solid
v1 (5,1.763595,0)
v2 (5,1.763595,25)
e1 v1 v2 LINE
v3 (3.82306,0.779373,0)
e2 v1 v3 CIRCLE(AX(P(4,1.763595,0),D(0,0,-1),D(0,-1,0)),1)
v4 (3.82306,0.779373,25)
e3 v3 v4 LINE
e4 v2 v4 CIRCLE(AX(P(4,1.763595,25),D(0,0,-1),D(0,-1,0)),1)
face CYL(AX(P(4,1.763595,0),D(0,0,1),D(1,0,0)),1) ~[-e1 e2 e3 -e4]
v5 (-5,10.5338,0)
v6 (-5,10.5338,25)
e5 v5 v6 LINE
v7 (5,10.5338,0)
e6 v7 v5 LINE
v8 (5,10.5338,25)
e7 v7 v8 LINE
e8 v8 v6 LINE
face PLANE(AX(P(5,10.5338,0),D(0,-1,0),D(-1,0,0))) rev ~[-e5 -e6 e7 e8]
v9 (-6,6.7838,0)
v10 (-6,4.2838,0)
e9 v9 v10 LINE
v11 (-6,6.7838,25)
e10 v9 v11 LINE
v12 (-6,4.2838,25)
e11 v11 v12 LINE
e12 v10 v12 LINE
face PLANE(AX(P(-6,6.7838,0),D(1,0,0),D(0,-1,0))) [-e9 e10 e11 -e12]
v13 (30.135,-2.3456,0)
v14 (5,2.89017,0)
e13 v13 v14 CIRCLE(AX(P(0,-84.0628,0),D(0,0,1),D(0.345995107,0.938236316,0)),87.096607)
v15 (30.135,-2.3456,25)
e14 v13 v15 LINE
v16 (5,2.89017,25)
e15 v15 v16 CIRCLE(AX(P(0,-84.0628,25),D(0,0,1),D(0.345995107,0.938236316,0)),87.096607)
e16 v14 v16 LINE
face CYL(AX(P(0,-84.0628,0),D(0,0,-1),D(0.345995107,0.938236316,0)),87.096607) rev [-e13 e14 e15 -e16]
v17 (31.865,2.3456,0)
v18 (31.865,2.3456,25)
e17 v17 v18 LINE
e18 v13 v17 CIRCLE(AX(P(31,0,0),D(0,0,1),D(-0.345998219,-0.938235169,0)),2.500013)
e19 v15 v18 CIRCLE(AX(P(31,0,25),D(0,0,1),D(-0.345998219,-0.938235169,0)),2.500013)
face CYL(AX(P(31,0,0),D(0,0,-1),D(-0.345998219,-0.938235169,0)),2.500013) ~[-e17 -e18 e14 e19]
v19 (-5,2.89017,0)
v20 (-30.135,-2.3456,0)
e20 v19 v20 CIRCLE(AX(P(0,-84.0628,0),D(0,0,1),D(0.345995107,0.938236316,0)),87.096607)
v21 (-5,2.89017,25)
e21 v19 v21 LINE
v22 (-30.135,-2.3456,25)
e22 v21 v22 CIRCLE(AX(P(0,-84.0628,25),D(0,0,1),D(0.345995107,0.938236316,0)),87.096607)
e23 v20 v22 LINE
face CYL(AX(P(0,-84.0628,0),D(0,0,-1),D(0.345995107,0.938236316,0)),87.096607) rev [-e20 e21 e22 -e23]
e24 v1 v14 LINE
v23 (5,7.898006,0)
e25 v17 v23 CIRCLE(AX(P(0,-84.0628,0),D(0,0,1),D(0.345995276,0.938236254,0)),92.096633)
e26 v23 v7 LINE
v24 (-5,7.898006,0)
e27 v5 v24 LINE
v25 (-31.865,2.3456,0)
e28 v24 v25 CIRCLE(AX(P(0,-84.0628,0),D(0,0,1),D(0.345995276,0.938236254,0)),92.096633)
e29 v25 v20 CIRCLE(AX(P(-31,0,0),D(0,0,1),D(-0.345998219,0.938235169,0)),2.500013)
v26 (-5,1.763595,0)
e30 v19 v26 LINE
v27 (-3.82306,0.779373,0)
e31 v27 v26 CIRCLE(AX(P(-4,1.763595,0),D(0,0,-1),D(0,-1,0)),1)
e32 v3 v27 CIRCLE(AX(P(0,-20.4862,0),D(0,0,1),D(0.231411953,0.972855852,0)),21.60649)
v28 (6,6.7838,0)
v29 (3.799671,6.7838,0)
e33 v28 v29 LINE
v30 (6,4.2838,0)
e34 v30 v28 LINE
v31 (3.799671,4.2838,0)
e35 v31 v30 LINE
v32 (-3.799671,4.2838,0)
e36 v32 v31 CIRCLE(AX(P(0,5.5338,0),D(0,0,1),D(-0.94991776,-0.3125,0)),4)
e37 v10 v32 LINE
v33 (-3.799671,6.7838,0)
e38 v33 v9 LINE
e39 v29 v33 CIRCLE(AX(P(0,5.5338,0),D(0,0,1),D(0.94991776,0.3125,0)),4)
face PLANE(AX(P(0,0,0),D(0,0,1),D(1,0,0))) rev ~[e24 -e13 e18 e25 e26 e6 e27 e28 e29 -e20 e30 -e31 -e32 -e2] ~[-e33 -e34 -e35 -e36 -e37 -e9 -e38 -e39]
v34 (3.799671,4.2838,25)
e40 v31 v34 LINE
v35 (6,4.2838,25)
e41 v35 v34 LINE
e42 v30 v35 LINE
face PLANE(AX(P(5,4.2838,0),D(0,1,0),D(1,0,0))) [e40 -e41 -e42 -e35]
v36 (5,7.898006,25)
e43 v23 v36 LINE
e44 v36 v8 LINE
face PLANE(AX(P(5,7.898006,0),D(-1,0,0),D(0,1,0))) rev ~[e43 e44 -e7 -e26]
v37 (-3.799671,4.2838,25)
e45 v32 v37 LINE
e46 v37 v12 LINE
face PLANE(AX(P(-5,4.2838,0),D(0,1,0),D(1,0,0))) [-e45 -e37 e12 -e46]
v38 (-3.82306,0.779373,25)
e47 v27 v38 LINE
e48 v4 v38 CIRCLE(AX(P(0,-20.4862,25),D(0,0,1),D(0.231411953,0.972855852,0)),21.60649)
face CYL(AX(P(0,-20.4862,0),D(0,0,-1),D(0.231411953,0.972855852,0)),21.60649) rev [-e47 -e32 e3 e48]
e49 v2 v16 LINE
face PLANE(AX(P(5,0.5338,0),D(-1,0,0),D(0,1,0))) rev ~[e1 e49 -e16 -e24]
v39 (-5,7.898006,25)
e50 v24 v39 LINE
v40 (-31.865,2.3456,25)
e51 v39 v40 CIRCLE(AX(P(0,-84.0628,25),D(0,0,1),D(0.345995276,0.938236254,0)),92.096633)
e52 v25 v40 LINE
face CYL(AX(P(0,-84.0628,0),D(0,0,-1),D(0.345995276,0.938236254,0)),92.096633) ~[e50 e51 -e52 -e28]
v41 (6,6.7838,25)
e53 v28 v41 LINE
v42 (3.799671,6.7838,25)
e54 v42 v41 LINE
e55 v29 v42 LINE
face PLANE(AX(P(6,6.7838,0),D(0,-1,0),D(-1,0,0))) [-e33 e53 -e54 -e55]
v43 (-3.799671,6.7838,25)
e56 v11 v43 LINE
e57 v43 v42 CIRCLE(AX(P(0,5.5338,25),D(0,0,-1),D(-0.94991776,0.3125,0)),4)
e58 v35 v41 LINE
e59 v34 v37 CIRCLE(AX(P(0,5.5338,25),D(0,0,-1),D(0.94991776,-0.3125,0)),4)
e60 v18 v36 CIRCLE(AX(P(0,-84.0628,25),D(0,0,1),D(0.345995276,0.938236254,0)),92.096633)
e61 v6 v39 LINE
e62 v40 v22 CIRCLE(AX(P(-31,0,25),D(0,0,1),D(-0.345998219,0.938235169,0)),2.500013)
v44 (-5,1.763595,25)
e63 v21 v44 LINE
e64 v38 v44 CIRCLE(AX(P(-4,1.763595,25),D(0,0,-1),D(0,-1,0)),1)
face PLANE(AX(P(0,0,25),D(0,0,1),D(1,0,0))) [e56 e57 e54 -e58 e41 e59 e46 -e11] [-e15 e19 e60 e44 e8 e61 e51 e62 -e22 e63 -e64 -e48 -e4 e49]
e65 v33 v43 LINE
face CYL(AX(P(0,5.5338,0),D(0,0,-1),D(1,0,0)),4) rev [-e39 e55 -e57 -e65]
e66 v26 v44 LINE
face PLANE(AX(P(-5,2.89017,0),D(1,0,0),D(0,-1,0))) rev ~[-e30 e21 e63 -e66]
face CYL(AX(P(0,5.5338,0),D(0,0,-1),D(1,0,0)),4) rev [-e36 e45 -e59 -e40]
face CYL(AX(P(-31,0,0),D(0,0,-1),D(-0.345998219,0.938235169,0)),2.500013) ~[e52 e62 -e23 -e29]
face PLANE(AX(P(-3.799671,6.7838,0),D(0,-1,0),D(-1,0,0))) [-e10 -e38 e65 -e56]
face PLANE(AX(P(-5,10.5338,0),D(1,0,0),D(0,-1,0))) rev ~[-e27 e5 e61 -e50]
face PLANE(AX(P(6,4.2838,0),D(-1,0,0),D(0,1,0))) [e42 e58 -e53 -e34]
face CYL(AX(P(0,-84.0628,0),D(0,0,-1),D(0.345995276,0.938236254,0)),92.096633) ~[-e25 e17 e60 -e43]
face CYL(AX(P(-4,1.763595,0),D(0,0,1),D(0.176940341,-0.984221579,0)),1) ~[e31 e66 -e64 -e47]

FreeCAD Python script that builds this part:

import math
import FreeCAD as App
import Part
import Sketcher
Q = App.Units.Quantity


def edges_at(feature, points):
    """Names of the edges that pass closest to the given points."""
    edges = feature.Shape.Edges
    near = lambda p: min(range(len(edges)), key=lambda i: edges[i].distToShape(Part.Vertex(*p))[0])
    return sorted({f"Edge{near(p) + 1}" for p in points})

doc = App.newDocument("Part")
body = doc.addObject("PartDesign::Body", "Body")

# Sketch on XY plane
sketch1 = doc.addObject("Sketcher::SketchObject", "Sketch")
body.addObject(sketch1)
sketch1.AttachmentSupport = (doc.XY_Plane, [""])
sketch1.MapMode = "FlatFace"
sketch1.addGeometry([
    Part.ArcOfCircle(Part.Circle(App.Vector(31, 0, 0), App.Vector(0, 0, 1), 2.5), math.radians(-110), math.radians(70)),  # 0
    Part.ArcOfCircle(Part.Circle(App.Vector(0, -84.1, 0), App.Vector(0, 0, 1), 92.1), math.radians(69.76), math.radians(86.89)),  # 1
    Part.LineSegment(App.Vector(5, 7.9, 0), App.Vector(5, 10.5, 0)),  # 2
    Part.LineSegment(App.Vector(5, 10.5, 0), App.Vector(-5, 10.5, 0)),  # 3
    Part.LineSegment(App.Vector(-5, 10.5, 0), App.Vector(-5, 7.9, 0)),  # 4
    Part.ArcOfCircle(Part.Circle(App.Vector(0, -84.1, 0), App.Vector(0, 0, 1), 92.1), math.radians(93.11), math.radians(110.24)),  # 5
    Part.ArcOfCircle(Part.Circle(App.Vector(-31, 0, 0), App.Vector(0, 0, 1), 2.5), math.radians(110), math.radians(290)),  # 6
    Part.ArcOfCircle(Part.Circle(App.Vector(0, -84.1, 0), App.Vector(0, 0, 1), 87.1), math.radians(93.29), math.radians(110.24)),  # 7
    Part.LineSegment(App.Vector(-5, 2.9, 0), App.Vector(-5, 0.5, 0)),  # 8
    Part.ArcOfCircle(Part.Circle(App.Vector(0, -20.5, 0), App.Vector(0, 0, 1), 21.6), math.radians(77), math.radians(103)),  # 9
    Part.LineSegment(App.Vector(5, 0.5, 0), App.Vector(5, 2.9, 0)),  # 10
    Part.ArcOfCircle(Part.Circle(App.Vector(0, -84.1, 0), App.Vector(0, 0, 1), 87.1), math.radians(69.76), math.radians(86.71)),  # 11
    Part.LineSegment(App.Vector(6, 4.3, 0), App.Vector(3.8, 4.3, 0)),  # 12
    Part.ArcOfCircle(Part.Circle(App.Vector(0, 5.5, 0), App.Vector(0, 0, 1), 4), math.radians(-162), math.radians(-18)),  # 13
    Part.LineSegment(App.Vector(-3.8, 4.3, 0), App.Vector(-6, 4.3, 0)),  # 14
    Part.LineSegment(App.Vector(-6, 4.3, 0), App.Vector(-6, 6.8, 0)),  # 15
    Part.LineSegment(App.Vector(-6, 6.8, 0), App.Vector(-3.8, 6.8, 0)),  # 16
    Part.ArcOfCircle(Part.Circle(App.Vector(0, 5.5, 0), App.Vector(0, 0, 1), 4), math.radians(18), math.radians(162)),  # 17
    Part.LineSegment(App.Vector(3.8, 6.8, 0), App.Vector(6, 6.8, 0)),  # 18
    Part.LineSegment(App.Vector(6, 6.8, 0), App.Vector(6, 4.3, 0)),  # 19
], False)
sketch1.addConstraint([
    Sketcher.Constraint("Tangent", 0, 2, 1, 1),
    Sketcher.Constraint("Coincident", 1, 2, 2, 1),
    Sketcher.Constraint("Coincident", 2, 2, 3, 1),
    Sketcher.Constraint("Coincident", 3, 2, 4, 1),
    Sketcher.Constraint("Coincident", 4, 2, 5, 1),
    Sketcher.Constraint("Tangent", 5, 2, 6, 1),
    Sketcher.Constraint("Tangent", 6, 2, 7, 2),
    Sketcher.Constraint("Coincident", 7, 1, 8, 1),
    Sketcher.Constraint("Coincident", 8, 2, 9, 2),
    Sketcher.Constraint("Coincident", 9, 1, 10, 1),
    Sketcher.Constraint("Coincident", 10, 2, 11, 2),
    Sketcher.Constraint("Tangent", 11, 1, 0, 1),
    Sketcher.Constraint("Coincident", 12, 2, 13, 2),
    Sketcher.Constraint("Coincident", 13, 1, 14, 1),
    Sketcher.Constraint("Coincident", 14, 2, 15, 1),
    Sketcher.Constraint("Coincident", 15, 2, 16, 1),
    Sketcher.Constraint("Coincident", 16, 2, 17, 2),
    Sketcher.Constraint("Coincident", 17, 1, 18, 1),
    Sketcher.Constraint("Coincident", 18, 2, 19, 1),
    Sketcher.Constraint("Coincident", 19, 2, 12, 1),
    Sketcher.Constraint("Vertical", 2),
    Sketcher.Constraint("Horizontal", 3),
    Sketcher.Constraint("Vertical", 4),
    Sketcher.Constraint("Vertical", 8),
    Sketcher.Constraint("Vertical", 10),
    Sketcher.Constraint("Horizontal", 12),
    Sketcher.Constraint("Horizontal", 14),
    Sketcher.Constraint("Vertical", 15),
    Sketcher.Constraint("Horizontal", 16),
    Sketcher.Constraint("Horizontal", 18),
    Sketcher.Constraint("Vertical", 19),
    Sketcher.Constraint("Coincident", 5, 3, 1, 3),
    Sketcher.Constraint("Coincident", 7, 3, 1, 3),
    Sketcher.Constraint("Coincident", 11, 3, 1, 3),
    Sketcher.Constraint("Coincident", 17, 3, 13, 3),
    Sketcher.Constraint("Equal", 1, 5),
    Sketcher.Constraint("Equal", 0, 6),
    Sketcher.Constraint("Equal", 13, 17),
    Sketcher.Constraint("Symmetric", 0, 3, 6, 3, -1, 1),
    Sketcher.Constraint("Symmetric", 1, 2, 4, 2, -2),
    Sketcher.Constraint("Symmetric", 8, 2, 9, 1, -2),
    Sketcher.Constraint("Symmetric", 12, 2, 13, 1, -2),
    Sketcher.Constraint("Symmetric", 15, 2, 18, 2, -2),
    Sketcher.Constraint("Vertical", 4, 2, 7, 1),
    Sketcher.Constraint("Vertical", 13, 1, 16, 2),
    Sketcher.Constraint("Radius", 13, Q("4 mm")),
    Sketcher.Constraint("Radius", 0, Q("2.5 mm")),
    Sketcher.Constraint("DistanceX", 3, 2, 3, 1, Q("10 mm")),
    Sketcher.Constraint("DistanceY", 15, 1, 15, 2, Q("2.5 mm")),
    Sketcher.Constraint("DistanceX", 6, 3, 0, 3, Q("62 mm")),
    Sketcher.Constraint("DistanceY", 13, 3, 2, 2, Q("5 mm")),
    Sketcher.Constraint("DistanceY", 8, 2, 13, 3, Q("5 mm")),
    Sketcher.Constraint("Radius", 7, Q("87.0966 mm")),
    Sketcher.Constraint("DistanceX", 14, 2, -1, 1, Q("6 mm")),
    Sketcher.Constraint("Radius", 9, Q("21.6065 mm")),
    Sketcher.Constraint("DistanceY", 2, 1, 2, 2, Q("2.6358 mm")),
])
pad1 = doc.addObject("PartDesign::Pad", "Pad")
body.addObject(pad1)
pad1.Profile = sketch1
pad1.Length = 25
doc.recompute()

fillet = doc.addObject("PartDesign::Fillet", "Fillet")
body.addObject(fillet)
fillet.Base = (pad1, edges_at(pad1, [(5, 0.534, 12.5)]))
fillet.Radius = 1
doc.recompute()

fillet2 = doc.addObject("PartDesign::Fillet", "Fillet001")
body.addObject(fillet2)
fillet2.Base = (fillet, edges_at(fillet, [(-5, 0.534, 12.5)]))
fillet2.Radius = 1

doc.recompute()
